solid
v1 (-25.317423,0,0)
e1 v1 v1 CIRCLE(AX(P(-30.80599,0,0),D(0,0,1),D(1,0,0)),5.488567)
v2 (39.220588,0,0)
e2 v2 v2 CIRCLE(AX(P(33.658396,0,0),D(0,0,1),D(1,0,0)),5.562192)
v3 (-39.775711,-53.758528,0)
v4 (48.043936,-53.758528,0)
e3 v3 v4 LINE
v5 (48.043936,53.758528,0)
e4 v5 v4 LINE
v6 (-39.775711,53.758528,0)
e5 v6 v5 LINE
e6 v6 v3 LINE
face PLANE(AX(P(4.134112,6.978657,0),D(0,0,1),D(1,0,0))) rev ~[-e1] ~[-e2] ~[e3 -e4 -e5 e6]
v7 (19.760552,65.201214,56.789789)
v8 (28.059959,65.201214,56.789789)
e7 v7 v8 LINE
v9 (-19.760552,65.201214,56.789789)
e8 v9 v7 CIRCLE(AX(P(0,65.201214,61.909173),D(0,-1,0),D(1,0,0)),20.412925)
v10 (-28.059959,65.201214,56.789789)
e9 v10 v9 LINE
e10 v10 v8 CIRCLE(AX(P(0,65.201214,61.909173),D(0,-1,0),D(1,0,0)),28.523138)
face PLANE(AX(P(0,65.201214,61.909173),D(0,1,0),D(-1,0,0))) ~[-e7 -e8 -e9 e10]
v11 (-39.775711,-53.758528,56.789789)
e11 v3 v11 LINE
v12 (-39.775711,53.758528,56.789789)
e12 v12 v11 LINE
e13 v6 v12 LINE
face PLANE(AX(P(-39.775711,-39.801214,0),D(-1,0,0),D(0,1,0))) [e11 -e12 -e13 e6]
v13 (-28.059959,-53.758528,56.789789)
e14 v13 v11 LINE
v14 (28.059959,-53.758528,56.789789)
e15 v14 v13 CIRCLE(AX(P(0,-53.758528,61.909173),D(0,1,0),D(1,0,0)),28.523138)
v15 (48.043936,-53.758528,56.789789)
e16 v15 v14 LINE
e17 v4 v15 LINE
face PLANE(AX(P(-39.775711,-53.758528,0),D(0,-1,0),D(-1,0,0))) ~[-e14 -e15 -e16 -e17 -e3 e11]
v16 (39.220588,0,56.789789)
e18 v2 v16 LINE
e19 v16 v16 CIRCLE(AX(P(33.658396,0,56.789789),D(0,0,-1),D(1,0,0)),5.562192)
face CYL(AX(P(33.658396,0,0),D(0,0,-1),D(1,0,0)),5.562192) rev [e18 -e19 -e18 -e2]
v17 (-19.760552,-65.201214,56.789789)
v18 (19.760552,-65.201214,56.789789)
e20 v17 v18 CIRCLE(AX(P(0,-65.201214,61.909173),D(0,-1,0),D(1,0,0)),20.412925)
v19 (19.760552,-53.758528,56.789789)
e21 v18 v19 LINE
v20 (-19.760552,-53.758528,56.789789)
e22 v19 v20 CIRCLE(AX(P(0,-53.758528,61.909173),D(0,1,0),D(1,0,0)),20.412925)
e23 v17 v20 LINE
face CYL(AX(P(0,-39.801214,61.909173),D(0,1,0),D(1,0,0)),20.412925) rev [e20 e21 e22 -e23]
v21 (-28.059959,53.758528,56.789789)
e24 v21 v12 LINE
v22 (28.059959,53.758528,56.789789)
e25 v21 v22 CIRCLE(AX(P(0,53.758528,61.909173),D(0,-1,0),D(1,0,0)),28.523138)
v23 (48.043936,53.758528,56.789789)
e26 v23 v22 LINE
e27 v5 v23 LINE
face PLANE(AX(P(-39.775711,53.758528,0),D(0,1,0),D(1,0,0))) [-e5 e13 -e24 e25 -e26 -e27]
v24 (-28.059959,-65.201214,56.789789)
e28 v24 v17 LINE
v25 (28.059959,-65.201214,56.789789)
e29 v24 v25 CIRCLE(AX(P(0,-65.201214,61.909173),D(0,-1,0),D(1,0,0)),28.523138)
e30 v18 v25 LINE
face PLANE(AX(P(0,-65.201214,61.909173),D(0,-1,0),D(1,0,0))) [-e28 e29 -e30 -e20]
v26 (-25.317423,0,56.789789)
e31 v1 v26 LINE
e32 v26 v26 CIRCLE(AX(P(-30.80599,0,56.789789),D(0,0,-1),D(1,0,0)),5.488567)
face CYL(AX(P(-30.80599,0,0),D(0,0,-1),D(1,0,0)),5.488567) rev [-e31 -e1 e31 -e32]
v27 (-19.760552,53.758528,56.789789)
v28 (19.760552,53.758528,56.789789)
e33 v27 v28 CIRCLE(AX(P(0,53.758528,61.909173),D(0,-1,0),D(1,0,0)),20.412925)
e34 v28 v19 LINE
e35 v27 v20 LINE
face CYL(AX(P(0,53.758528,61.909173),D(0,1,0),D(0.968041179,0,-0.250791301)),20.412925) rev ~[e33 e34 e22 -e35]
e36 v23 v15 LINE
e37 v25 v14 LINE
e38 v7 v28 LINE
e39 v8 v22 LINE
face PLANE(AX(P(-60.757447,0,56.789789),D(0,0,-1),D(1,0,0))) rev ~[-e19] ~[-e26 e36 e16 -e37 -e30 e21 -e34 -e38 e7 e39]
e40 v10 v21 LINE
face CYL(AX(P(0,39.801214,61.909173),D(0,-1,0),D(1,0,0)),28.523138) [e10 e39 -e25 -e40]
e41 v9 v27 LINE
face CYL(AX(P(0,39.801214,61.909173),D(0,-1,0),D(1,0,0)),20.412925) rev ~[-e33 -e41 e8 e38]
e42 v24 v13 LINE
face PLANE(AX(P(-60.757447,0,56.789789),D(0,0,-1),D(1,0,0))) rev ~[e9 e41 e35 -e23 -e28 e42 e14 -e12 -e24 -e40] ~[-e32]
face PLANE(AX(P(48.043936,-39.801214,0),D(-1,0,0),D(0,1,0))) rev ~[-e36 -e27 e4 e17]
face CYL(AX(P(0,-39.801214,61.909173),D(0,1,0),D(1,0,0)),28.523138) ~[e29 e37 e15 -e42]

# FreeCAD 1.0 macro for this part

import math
import FreeCAD as App
import Part
import Sketcher
from FreeCAD import Vector
Q = App.Units.Quantity


def add_polygon(sketch, points):
    """Adds a closed chain of lines whose ends are joined by coincident constraints."""
    first, n = sketch.GeometryCount, len(points)
    for a, b in zip(points, points[1:] + points[:1]):
        sketch.addGeometry(Part.LineSegment(App.Vector(*a, 0), App.Vector(*b, 0)), False)
    for i in range(n):
        sketch.addConstraint(Sketcher.Constraint("Coincident", first + i, 2, first + (i + 1) % n, 1))

doc = App.newDocument("Part")
params = doc.addObject("Spreadsheet::Sheet", "Params")
for row, (alias, value) in enumerate([
    ("pad1_length", "4.31 in"),
    ("pad2_length", "1 in"),
    ("pocket1_length", "6 in"),
], start=1):
    params.set(f"A{row}", alias)
    params.set(f"B{row}", "=" + value)
    params.setAlias(f"B{row}", alias)

body = doc.addObject("PartDesign::Body", "Body")

# Sketch on XY plane
sketch1 = body.newObject("Sketcher::SketchObject", "Sketch")
sketch1.AttachmentSupport = (doc.getObject("XY_Plane"), [""])
sketch1.MapMode = "FlatFace"
add_polygon(sketch1, [(-39.775711, 53.758528), (-39.775711, -39.801214), (48.043936, -39.801214), (48.043936, 53.758528)])  # lines 0-3
sketch1.addGeometry(Part.Circle(Vector(-32.668188, 13.385462, 0), Vector(0, 0, 1), 4.613034), False)  # 4
sketch1.addGeometry(Part.Circle(Vector(36.83091, 13.385462, 0), Vector(0, 0, 1), 4.621613), False)  # 5
sketch1.addConstraint(Sketcher.Constraint("Vertical", 0))
sketch1.addConstraint(Sketcher.Constraint("Horizontal", 1))
sketch1.addConstraint(Sketcher.Constraint("Vertical", 2))
sketch1.addConstraint(Sketcher.Constraint("Horizontal", 3))
sketch1.addConstraint(Sketcher.Constraint("Horizontal", 4, 3, 5, 3))
sketch1.addConstraint(Sketcher.Constraint("Diameter", 4, Q("9.226068 mm")))
sketch1.addConstraint(Sketcher.Constraint("Diameter", 5, Q("9.243226 mm")))
sketch1.addConstraint(Sketcher.Constraint("DistanceY", 0, 2, 0, 1, Q("93.559742 mm")))
sketch1.addConstraint(Sketcher.Constraint("DistanceX", 4, 3, 5, 3, Q("69.499098 mm")))
sketch1.addConstraint(Sketcher.Constraint("DistanceX", 1, 1, 1, 2, Q("87.819647 mm")))
sketch1.addConstraint(Sketcher.Constraint("DistanceX", -1, 1, 5, 3, Q("36.83091 mm")))
sketch1.addConstraint(Sketcher.Constraint("DistanceX", 0, 2, -1, 1, Q("39.775711 mm")))
sketch1.addConstraint(Sketcher.Constraint("DistanceY", -1, 1, 4, 3, Q("13.385462 mm")))
sketch1.addConstraint(Sketcher.Constraint("DistanceY", 0, 2, -1, 1, Q("39.801214 mm")))
pad1 = body.newObject("PartDesign::Pad", "Pad")
pad1.Profile = sketch1
pad1.setExpression("Length", "Params.pad1_length")

# Sketch on XZ plane
sketch2 = body.newObject("Sketcher::SketchObject", "Sketch001")
sketch2.AttachmentSupport = (doc.getObject("XZ_Plane"), [""])
sketch2.MapMode = "FlatFace"
sketch2.AttachmentOffset = App.Placement(Vector(0, 0, 39.801214), App.Rotation())
sketch2.addGeometry(Part.Circle(Vector(0, 61.909173, 0), Vector(0, 0, 1), 28.523138), False)
sketch2.addGeometry(Part.Circle(Vector(0, 61.909173, 0), Vector(0, 0, 1), 20.412925), False)
sketch2.addConstraint(Sketcher.Constraint("Coincident", 1, 3, 0, 3))
sketch2.addConstraint(Sketcher.Constraint("PointOnObject", 0, 3, -2))
sketch2.addConstraint(Sketcher.Constraint("Diameter", 1, Q("40.82585 mm")))
sketch2.addConstraint(Sketcher.Constraint("Diameter", 0, Q("57.046276 mm")))
sketch2.addConstraint(Sketcher.Constraint("DistanceY", -1, 1, 0, 3, Q("61.909173 mm")))
pad2 = body.newObject("PartDesign::Pad", "Pad001")
pad2.Profile = sketch2
pad2.setExpression("Length", "Params.pad2_length")
body2 = doc.addObject("PartDesign::Body", "Body001")
doc.recompute()

body2.BaseFeature = body
doc.recompute()

mirroring = doc.addObject("Part::Mirroring", "Mirroring")
mirroring.Source = body
mirroring.Base = Vector(0, 0, 0)
mirroring.Normal = Vector(0, -1, 0)
body3 = doc.addObject("PartDesign::Body", "Body002")
body3.BaseFeature = mirroring
boolean = body2.newObject("PartDesign::Boolean", "Boolean")
boolean.Type = "Fuse"
boolean.addObjects([body3])
doc.recompute()

# Sketch on XZ plane
sketch3 = body2.newObject("Sketcher::SketchObject", "Sketch002")
sketch3.AttachmentSupport = (doc.getObject("XZ_Plane001"), [""])
sketch3.MapMode = "FlatFace"
add_polygon(sketch3, [(-60.757447, 117.682451), (-60.757447, 56.789789), (78.232101, 56.789789), (78.232101, 117.682451)])  # lines 0-3
sketch3.addConstraint(Sketcher.Constraint("Vertical", 0))
sketch3.addConstraint(Sketcher.Constraint("Horizontal", 1))
sketch3.addConstraint(Sketcher.Constraint("Vertical", 2))
sketch3.addConstraint(Sketcher.Constraint("Horizontal", 3))
sketch3.addConstraint(Sketcher.Constraint("DistanceX", 1, 1, 1, 2, Q("138.989549 mm")))
sketch3.addConstraint(Sketcher.Constraint("DistanceY", 0, 2, 0, 1, Q("60.892661 mm")))
sketch3.addConstraint(Sketcher.Constraint("DistanceX", -1, 1, 1, 2, Q("78.232101 mm")))
sketch3.addConstraint(Sketcher.Constraint("DistanceY", -1, 1, 0, 2, Q("56.789789 mm")))
pocket1 = body2.newObject("PartDesign::Pocket", "Pocket")
pocket1.Profile = sketch3
pocket1.setExpression("Length", "Params.pocket1_length")
pocket1.Midplane = True

# Sketch on XZ plane
sketch4 = body2.newObject("Sketcher::SketchObject", "Sketch003")
sketch4.AttachmentSupport = (doc.getObject("XZ_Plane001"), [""])
sketch4.MapMode = "FlatFace"
sketch4.AttachmentOffset = App.Placement(Vector(0, 0, -53.758528), App.Rotation())
sketch4.addGeometry(Part.LineSegment(Vector(-19.760552, 56.789789, 0), Vector(19.760552, 56.789789, 0)), False)
sketch4.addGeometry(Part.ArcOfCircle(Part.Circle(Vector(0, 61.909173, 0), Vector(0, 0, 1), 20.412925), math.radians(-165.475658), math.radians(-14.524342)), False)
sketch4.addConstraint(Sketcher.Constraint("Coincident", 0, 1, 1, 1))
sketch4.addConstraint(Sketcher.Constraint("Coincident", 1, 2, 0, 2))
sketch4.addConstraint(Sketcher.Constraint("Horizontal", 0))
sketch4.addConstraint(Sketcher.Constraint("PointOnObject", 1, 3, -2))
sketch4.addConstraint(Sketcher.Constraint("Radius", 1, Q("20.412925 mm")))
sketch4.addConstraint(Sketcher.Constraint("DistanceX", 0, 1, 0, 2, Q("39.521104 mm")))
sketch4.addConstraint(Sketcher.Constraint("DistanceY", -1, 1, 0, 1, Q("56.789789 mm")))
pocket2 = body2.newObject("PartDesign::Pocket", "Pocket001")
pocket2.Profile = sketch4
pocket2.Type = "ThroughAll"
pocket2.Reversed = True

# Sketch on XY plane
sketch5 = body2.newObject("Sketcher::SketchObject", "Sketch004")
sketch5.AttachmentSupport = (doc.getObject("XY_Plane001"), [""])
sketch5.MapMode = "FlatFace"
sketch5.addGeometry(Part.Circle(Vector(33.658396, 0, 0), Vector(0, 0, 1), 5.562192), False)
sketch5.addGeometry(Part.Circle(Vector(-30.80599, 0, 0), Vector(0, 0, 1), 5.488567), False)
sketch5.addConstraint(Sketcher.Constraint("PointOnObject", 0, 3, -1))
sketch5.addConstraint(Sketcher.Constraint("PointOnObject", 1, 3, -1))
sketch5.addConstraint(Sketcher.Constraint("Diameter", 0, Q("11.124384 mm")))
sketch5.addConstraint(Sketcher.Constraint("Diameter", 1, Q("10.977134 mm")))
sketch5.addConstraint(Sketcher.Constraint("DistanceX", 1, 3, -1, 1, Q("30.80599 mm")))
sketch5.addConstraint(Sketcher.Constraint("DistanceX", -1, 1, 0, 3, Q("33.658396 mm")))
pocket3 = body2.newObject("PartDesign::Pocket", "Pocket002")
pocket3.Profile = sketch5
pocket3.Type = "ThroughAll"
pocket3.Reversed = True
mirroring.Visibility = False

doc.recompute()
